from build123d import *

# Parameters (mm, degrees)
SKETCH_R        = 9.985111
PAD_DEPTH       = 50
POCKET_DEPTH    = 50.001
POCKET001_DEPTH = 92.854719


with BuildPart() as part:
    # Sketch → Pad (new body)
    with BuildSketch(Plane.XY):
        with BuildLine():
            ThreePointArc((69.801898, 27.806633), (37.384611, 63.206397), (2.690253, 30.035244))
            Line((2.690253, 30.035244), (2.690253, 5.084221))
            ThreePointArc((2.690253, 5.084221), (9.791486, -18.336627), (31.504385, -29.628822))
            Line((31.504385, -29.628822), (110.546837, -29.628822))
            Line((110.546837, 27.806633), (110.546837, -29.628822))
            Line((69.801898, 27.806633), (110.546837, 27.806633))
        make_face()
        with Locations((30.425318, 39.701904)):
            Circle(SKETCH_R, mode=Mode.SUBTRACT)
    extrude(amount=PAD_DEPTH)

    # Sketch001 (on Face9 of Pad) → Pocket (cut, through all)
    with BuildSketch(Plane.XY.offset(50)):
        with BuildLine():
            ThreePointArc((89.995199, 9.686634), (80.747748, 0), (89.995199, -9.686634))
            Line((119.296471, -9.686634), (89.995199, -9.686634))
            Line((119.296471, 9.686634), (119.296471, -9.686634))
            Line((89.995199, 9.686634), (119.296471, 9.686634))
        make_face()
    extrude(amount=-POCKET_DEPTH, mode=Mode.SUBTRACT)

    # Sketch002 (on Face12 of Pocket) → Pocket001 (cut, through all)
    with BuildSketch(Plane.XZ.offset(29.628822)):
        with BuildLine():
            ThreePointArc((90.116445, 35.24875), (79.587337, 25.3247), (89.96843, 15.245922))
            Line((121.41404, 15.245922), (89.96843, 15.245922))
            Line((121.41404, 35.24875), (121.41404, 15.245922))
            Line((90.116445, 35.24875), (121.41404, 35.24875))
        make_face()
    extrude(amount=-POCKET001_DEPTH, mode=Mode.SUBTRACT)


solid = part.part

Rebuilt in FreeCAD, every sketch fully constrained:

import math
import FreeCAD as App
import Part
import Sketcher

doc = App.newDocument("Part")
params = doc.addObject("Spreadsheet::Sheet", "Params")
for row, (alias, value) in enumerate([
    ("pad1_length", "50 mm"),
], start=1):
    params.set(f"A{row}", alias)
    params.set(f"B{row}", "=" + value)
    params.setAlias(f"B{row}", alias)

body = doc.addObject("PartDesign::Body", "Body")

# Sketch on XY plane
sketch1 = body.newObject("Sketcher::SketchObject", "Sketch")
sketch1.AttachmentSupport = (doc.getObject("XY_Plane"), [""])
sketch1.MapMode = "FlatFace"
sketch1.addGeometry([
    Part.ArcOfCircle(Part.Circle(App.Vector(36.270047, 29.642811, 0), App.Vector(0, 0, 1), 33.582087), math.radians(-3.134341), math.radians(179.330438)),  # 0
    Part.LineSegment(App.Vector(2.690253, 30.035244, 0), App.Vector(2.690253, 5.084221, 0)),  # 1
    Part.ArcOfCircle(Part.Circle(App.Vector(34.061411, 1.809023, 0), App.Vector(0, 0, 1), 31.541663), math.radians(174.039823), math.radians(265.350031)),  # 2
    Part.LineSegment(App.Vector(31.504385, -29.628822, 0), App.Vector(110.546837, -29.628822, 0)),  # 3
    Part.LineSegment(App.Vector(110.546837, -29.628822, 0), App.Vector(110.546837, 27.806633, 0)),  # 4
    Part.LineSegment(App.Vector(110.546837, 27.806633, 0), App.Vector(69.801898, 27.806633, 0)),  # 5
    Part.Circle(App.Vector(30.425318, 39.701904, 0), App.Vector(0, 0, 1), 9.985111),  # 6
], False)
sketch1.addConstraint([
    Sketcher.Constraint("Coincident", 0, 2, 1, 1),
    Sketcher.Constraint("Coincident", 1, 2, 2, 1),
    Sketcher.Constraint("Coincident", 2, 2, 3, 1),
    Sketcher.Constraint("Coincident", 3, 2, 4, 1),
    Sketcher.Constraint("Coincident", 4, 2, 5, 1),
    Sketcher.Constraint("Coincident", 5, 2, 0, 1),
    Sketcher.Constraint("Vertical", 1),
    Sketcher.Constraint("Horizontal", 3),
    Sketcher.Constraint("Vertical", 4),
    Sketcher.Constraint("Horizontal", 5),
    Sketcher.Constraint("Diameter", 6, 19.970222),
    Sketcher.Constraint("Radius", 0, 33.582087),
    Sketcher.Constraint("Radius", 2, 31.541663),
    Sketcher.Constraint("DistanceX", 3, 1, 3, 2, 79.042452),
    Sketcher.Constraint("DistanceX", 5, 2, 5, 1, 40.744939),
    Sketcher.Constraint("DistanceY", 1, 2, 1, 1, 24.951023),
    Sketcher.Constraint("DistanceY", 4, 1, 4, 2, 57.435455),
    Sketcher.Constraint("DistanceY", -1, 1, 0, 3, 29.642811),
    Sketcher.Constraint("DistanceX", -1, 1, 2, 3, 34.061411),
    Sketcher.Constraint("DistanceX", -1, 1, 6, 3, 30.425318),
    Sketcher.Constraint("DistanceY", -1, 1, 1, 2, 5.084221),
    Sketcher.Constraint("DistanceY", 3, 2, -1, 1, 29.628822),
    Sketcher.Constraint("DistanceY", 2, 3, 6, 3, 37.892881),
])
pad1 = body.newObject("PartDesign::Pad", "Pad")
pad1.Profile = sketch1
pad1.setExpression("Length", "Params.pad1_length")

# Sketch on XY plane
sketch2 = body.newObject("Sketcher::SketchObject", "Sketch001")
sketch2.AttachmentSupport = (doc.getObject("XY_Plane"), [""])
sketch2.MapMode = "FlatFace"
sketch2.AttachmentOffset = App.Placement(App.Vector(0, 0, 50), App.Rotation())
sketch2.addGeometry([
    Part.ArcOfCircle(Part.Circle(App.Vector(90.444811, 0, 0), App.Vector(0, 0, 1), 9.697063), math.radians(92.657516), math.radians(267.342484)),
    Part.LineSegment(App.Vector(89.995199, -9.686634, 0), App.Vector(119.296471, -9.686634, 0)),
    Part.LineSegment(App.Vector(119.296471, -9.686634, 0), App.Vector(119.296471, 9.686634, 0)),
    Part.LineSegment(App.Vector(119.296471, 9.686634, 0), App.Vector(89.995199, 9.686634, 0)),
], False)
sketch2.addConstraint([
    Sketcher.Constraint("Coincident", 0, 2, 1, 1),
    Sketcher.Constraint("Coincident", 1, 2, 2, 1),
    Sketcher.Constraint("Coincident", 2, 2, 3, 1),
    Sketcher.Constraint("Coincident", 3, 2, 0, 1),
    Sketcher.Constraint("Horizontal", 1),
    Sketcher.Constraint("Vertical", 2),
    Sketcher.Constraint("Horizontal", 3),
    Sketcher.Constraint("Symmetric", 0, 2, 3, 2, -1),
    Sketcher.Constraint("Radius", 0, 9.697063),
    Sketcher.Constraint("DistanceX", 1, 1, 1, 2, 29.301272),
    Sketcher.Constraint("DistanceX", -1, 1, 0, 2, 89.995199),
    Sketcher.Constraint("DistanceY", 2, 1, 2, 2, 19.373268),
])
pocket1 = body.newObject("PartDesign::Pocket", "Pocket")
pocket1.Profile = sketch2
pocket1.Type = "ThroughAll"

# Sketch on XZ plane
sketch3 = body.newObject("Sketcher::SketchObject", "Sketch002")
sketch3.AttachmentSupport = (doc.getObject("XZ_Plane"), [""])
sketch3.MapMode = "FlatFace"
sketch3.AttachmentOffset = App.Placement(App.Vector(0, 0, 29.628822), App.Rotation())
sketch3.addGeometry([
    Part.ArcOfCircle(Part.Circle(App.Vector(89.598595, 25.25062, 0), App.Vector(0, 0, 1), 10.011532), math.radians(87.03503), math.radians(272.117042)),
    Part.LineSegment(App.Vector(89.96843, 15.245922, 0), App.Vector(121.41404, 15.245922, 0)),
    Part.LineSegment(App.Vector(121.41404, 15.245922, 0), App.Vector(121.41404, 35.24875, 0)),
    Part.LineSegment(App.Vector(121.41404, 35.24875, 0), App.Vector(90.116445, 35.24875, 0)),
], False)
sketch3.addConstraint([
    Sketcher.Constraint("Coincident", 0, 2, 1, 1),
    Sketcher.Constraint("Coincident", 1, 2, 2, 1),
    Sketcher.Constraint("Coincident", 2, 2, 3, 1),
    Sketcher.Constraint("Coincident", 3, 2, 0, 1),
    Sketcher.Constraint("Horizontal", 1),
    Sketcher.Constraint("Vertical", 2),
    Sketcher.Constraint("Horizontal", 3),
    Sketcher.Constraint("Radius", 0, 10.011532),
    Sketcher.Constraint("DistanceX", 1, 1, 1, 2, 31.44561),
    Sketcher.Constraint("DistanceY", 2, 1, 2, 2, 20.002828),
    Sketcher.Constraint("DistanceY", 0, 2, 0, 3, 10.004698),
    Sketcher.Constraint("DistanceY", -1, 1, 0, 3, 25.25062),
    Sketcher.Constraint("DistanceX", -1, 1, 0, 2, 89.96843),
])
pocket2 = body.newObject("PartDesign::Pocket", "Pocket001")
pocket2.Profile = sketch3
pocket2.Type = "ThroughAll"

doc.recompute()
